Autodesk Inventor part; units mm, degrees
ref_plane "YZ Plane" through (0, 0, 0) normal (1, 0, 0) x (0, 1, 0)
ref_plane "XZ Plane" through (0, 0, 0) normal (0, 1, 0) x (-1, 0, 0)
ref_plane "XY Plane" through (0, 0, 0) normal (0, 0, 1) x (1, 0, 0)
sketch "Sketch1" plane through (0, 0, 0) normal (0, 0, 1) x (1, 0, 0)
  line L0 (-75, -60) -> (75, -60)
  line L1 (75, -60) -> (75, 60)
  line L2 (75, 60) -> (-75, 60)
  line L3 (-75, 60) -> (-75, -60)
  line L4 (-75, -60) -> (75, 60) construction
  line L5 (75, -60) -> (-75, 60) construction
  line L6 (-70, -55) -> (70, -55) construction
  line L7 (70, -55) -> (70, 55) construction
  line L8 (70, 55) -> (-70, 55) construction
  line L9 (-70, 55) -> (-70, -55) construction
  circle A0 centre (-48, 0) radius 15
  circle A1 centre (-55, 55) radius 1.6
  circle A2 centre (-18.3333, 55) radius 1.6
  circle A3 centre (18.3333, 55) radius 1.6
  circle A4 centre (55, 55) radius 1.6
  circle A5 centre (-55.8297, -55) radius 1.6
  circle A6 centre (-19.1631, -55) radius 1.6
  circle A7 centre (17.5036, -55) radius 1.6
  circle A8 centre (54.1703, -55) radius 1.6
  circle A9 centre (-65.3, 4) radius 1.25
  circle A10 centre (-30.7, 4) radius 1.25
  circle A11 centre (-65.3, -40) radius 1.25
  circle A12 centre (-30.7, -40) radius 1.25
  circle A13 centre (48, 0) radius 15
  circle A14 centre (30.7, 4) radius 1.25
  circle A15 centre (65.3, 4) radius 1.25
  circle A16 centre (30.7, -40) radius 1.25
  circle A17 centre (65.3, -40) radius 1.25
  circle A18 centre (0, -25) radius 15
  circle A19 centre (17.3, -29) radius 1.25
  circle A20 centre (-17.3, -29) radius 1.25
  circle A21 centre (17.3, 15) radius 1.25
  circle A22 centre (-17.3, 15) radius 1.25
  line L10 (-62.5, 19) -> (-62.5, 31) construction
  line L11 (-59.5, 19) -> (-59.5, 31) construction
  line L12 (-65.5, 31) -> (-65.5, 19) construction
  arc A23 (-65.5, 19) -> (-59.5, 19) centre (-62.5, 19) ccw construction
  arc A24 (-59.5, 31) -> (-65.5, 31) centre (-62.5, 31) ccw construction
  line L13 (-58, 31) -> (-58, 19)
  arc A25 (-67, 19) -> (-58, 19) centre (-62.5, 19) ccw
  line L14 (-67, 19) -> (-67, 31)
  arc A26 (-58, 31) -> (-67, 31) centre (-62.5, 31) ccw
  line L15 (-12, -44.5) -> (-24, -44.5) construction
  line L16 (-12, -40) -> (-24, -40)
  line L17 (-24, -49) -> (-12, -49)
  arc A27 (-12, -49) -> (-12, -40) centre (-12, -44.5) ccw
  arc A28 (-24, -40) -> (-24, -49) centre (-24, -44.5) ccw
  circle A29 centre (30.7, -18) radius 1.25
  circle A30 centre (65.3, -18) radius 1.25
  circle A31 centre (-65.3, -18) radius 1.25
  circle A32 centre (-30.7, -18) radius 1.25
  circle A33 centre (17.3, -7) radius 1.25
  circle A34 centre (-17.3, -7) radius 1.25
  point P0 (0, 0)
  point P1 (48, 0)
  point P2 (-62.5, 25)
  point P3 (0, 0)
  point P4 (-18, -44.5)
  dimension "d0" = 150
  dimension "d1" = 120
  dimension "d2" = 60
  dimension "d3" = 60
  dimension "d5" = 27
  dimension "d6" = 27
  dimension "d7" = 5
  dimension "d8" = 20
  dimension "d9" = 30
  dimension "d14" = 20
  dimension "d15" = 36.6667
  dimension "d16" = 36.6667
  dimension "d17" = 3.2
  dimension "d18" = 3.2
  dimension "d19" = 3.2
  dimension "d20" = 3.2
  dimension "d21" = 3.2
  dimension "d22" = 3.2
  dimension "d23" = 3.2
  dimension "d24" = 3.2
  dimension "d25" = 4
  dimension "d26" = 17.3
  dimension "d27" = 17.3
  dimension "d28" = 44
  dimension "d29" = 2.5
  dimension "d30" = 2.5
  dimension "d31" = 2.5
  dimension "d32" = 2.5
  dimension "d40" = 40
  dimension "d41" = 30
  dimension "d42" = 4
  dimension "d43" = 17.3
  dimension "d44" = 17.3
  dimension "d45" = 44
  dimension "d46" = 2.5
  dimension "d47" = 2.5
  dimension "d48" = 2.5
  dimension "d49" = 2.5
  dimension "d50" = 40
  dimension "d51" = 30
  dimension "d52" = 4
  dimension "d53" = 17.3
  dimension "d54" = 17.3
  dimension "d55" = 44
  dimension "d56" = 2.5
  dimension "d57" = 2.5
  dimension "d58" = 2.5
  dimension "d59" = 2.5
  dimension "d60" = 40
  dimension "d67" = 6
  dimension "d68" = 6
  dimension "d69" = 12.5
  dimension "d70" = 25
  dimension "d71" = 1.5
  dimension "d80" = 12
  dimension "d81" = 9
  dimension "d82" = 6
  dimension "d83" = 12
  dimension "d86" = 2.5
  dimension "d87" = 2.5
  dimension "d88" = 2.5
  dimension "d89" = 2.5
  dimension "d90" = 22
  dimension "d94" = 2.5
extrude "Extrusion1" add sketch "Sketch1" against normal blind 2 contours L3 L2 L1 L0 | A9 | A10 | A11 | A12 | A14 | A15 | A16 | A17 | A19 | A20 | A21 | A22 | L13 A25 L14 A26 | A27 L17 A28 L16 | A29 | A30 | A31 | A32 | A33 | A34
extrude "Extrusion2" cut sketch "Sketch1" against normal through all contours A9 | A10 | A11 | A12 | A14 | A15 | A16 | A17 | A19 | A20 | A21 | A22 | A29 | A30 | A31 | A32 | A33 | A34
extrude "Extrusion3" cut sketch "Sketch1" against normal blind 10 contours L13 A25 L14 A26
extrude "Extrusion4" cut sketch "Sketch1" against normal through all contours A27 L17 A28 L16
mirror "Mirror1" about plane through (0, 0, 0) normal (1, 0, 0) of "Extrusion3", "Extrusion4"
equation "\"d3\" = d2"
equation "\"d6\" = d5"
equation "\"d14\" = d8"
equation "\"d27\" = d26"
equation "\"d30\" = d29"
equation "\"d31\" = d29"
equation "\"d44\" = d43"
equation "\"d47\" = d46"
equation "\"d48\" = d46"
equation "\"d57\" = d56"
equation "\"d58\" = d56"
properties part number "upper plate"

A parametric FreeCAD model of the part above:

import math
import FreeCAD as App
import Part
import Sketcher
Q = App.Units.Quantity


def add_polygon(sketch, points):
    """Adds a closed chain of lines whose ends are joined by coincident constraints."""
    first, n = sketch.GeometryCount, len(points)
    for a, b in zip(points, points[1:] + points[:1]):
        sketch.addGeometry(Part.LineSegment(App.Vector(*a, 0), App.Vector(*b, 0)), False)
    for i in range(n):
        sketch.addConstraint(Sketcher.Constraint("Coincident", first + i, 2, first + (i + 1) % n, 1))

doc = App.newDocument("Part")
body = doc.addObject("PartDesign::Body", "Body")

# Sketch on XY plane
sketch1 = body.newObject("Sketcher::SketchObject", "Sketch")
sketch1.AttachmentSupport = (doc.getObject("XY_Plane"), [""])
sketch1.MapMode = "FlatFace"
add_polygon(sketch1, [(-75, 60), (-75, -60), (75, -60), (75, 60)])  # lines 0-3
sketch1.addGeometry(Part.Circle(App.Vector(-55.8297, -55, 0), App.Vector(0, 0, 1), 1.6), False)  # 4
sketch1.addGeometry(Part.Circle(App.Vector(-19.1631, -55, 0), App.Vector(0, 0, 1), 1.6), False)  # 5
sketch1.addGeometry(Part.Circle(App.Vector(17.5036, -55, 0), App.Vector(0, 0, 1), 1.6), False)  # 6
sketch1.addGeometry(Part.Circle(App.Vector(54.1703, -55, 0), App.Vector(0, 0, 1), 1.6), False)  # 7
sketch1.addGeometry(Part.Circle(App.Vector(0, -25, 0), App.Vector(0, 0, 1), 15), False)  # 8
sketch1.addGeometry(Part.Circle(App.Vector(-48, 0, 0), App.Vector(0, 0, 1), 15), False)  # 9
sketch1.addGeometry(Part.Circle(App.Vector(-55, 55, 0), App.Vector(0, 0, 1), 1.6), False)  # 10
sketch1.addGeometry(Part.Circle(App.Vector(-18.3333, 55, 0), App.Vector(0, 0, 1), 1.6), False)  # 11
sketch1.addGeometry(Part.Circle(App.Vector(48, 0, 0), App.Vector(0, 0, 1), 15), False)  # 12
sketch1.addGeometry(Part.Circle(App.Vector(18.3333, 55, 0), App.Vector(0, 0, 1), 1.6), False)  # 13
sketch1.addGeometry(Part.Circle(App.Vector(55, 55, 0), App.Vector(0, 0, 1), 1.6), False)  # 14
sketch1.addConstraint([
    Sketcher.Constraint("Vertical", 0),
    Sketcher.Constraint("Horizontal", 1),
    Sketcher.Constraint("Vertical", 2),
    Sketcher.Constraint("Horizontal", 3),
    Sketcher.Constraint("Equal", 4, 5),
    Sketcher.Constraint("Equal", 5, 6),
    Sketcher.Constraint("Equal", 6, 7),
    Sketcher.Constraint("Equal", 8, 9),
    Sketcher.Constraint("Equal", 7, 10),
    Sketcher.Constraint("Equal", 10, 11),
    Sketcher.Constraint("Equal", 9, 12),
    Sketcher.Constraint("Equal", 11, 13),
    Sketcher.Constraint("Equal", 13, 14),
    Sketcher.Constraint("Symmetric", 9, 3, 12, 3, -1, 1),
    Sketcher.Constraint("Symmetric", 0, 2, 2, 2, -1, 1),
    Sketcher.Constraint("Symmetric", 11, 3, 13, 3, -2),
    Sketcher.Constraint("Symmetric", 10, 3, 14, 3, -2),
    Sketcher.Constraint("PointOnObject", 8, 3, -2),
    Sketcher.Constraint("PointOnObject", 9, 3, -1),
    Sketcher.Constraint("Horizontal", 4, 3, 5, 3),
    Sketcher.Constraint("Horizontal", 5, 3, 6, 3),
    Sketcher.Constraint("Horizontal", 6, 3, 7, 3),
    Sketcher.Constraint("Horizontal", 10, 3, 11, 3),
    Sketcher.Constraint("Diameter", 8, Q("30 mm")),
    Sketcher.Constraint("Diameter", 4, Q("3.2 mm")),
    Sketcher.Constraint("DistanceX", 1, 1, 1, 2, Q("150 mm")),
    Sketcher.Constraint("DistanceY", 0, 2, 0, 1, Q("120 mm")),
    Sketcher.Constraint("DistanceY", 8, 3, -1, 1, Q("25 mm")),
    Sketcher.Constraint("DistanceY", 6, 3, 8, 3, Q("30 mm")),
    Sketcher.Constraint("DistanceX", 0, 2, 9, 3, Q("27 mm")),
    Sketcher.Constraint("DistanceX", 14, 3, 2, 2, Q("20 mm")),
    Sketcher.Constraint("DistanceY", 14, 3, 2, 2, Q("5 mm")),
    Sketcher.Constraint("DistanceX", 4, 3, 7, 3, Q("110 mm")),
    Sketcher.Constraint("DistanceX", 4, 3, 5, 3, Q("36.6666 mm")),
    Sketcher.Constraint("DistanceX", 5, 3, 6, 3, Q("36.6667 mm")),
    Sketcher.Constraint("DistanceX", 10, 3, 11, 3, Q("36.6667 mm")),
    Sketcher.Constraint("DistanceX", 5, 3, -1, 1, Q("19.163 mm")),
])
pad1 = body.newObject("PartDesign::Pad", "Pad")
pad1.Profile = sketch1
pad1.Length = 2
pad1.Reversed = True

# Sketch on XY plane
sketch2 = body.newObject("Sketcher::SketchObject", "Sketch001")
sketch2.AttachmentSupport = (doc.getObject("XY_Plane"), [""])
sketch2.MapMode = "FlatFace"
sketch2.addGeometry([
    Part.Circle(App.Vector(-65.3, 4, 0), App.Vector(0, 0, 1), 1.25),  # 0
    Part.Circle(App.Vector(-30.7, 4, 0), App.Vector(0, 0, 1), 1.25),  # 1
    Part.Circle(App.Vector(-65.3, -40, 0), App.Vector(0, 0, 1), 1.25),  # 2
    Part.Circle(App.Vector(-30.7, -40, 0), App.Vector(0, 0, 1), 1.25),  # 3
    Part.Circle(App.Vector(30.7, 4, 0), App.Vector(0, 0, 1), 1.25),  # 4
    Part.Circle(App.Vector(65.3, 4, 0), App.Vector(0, 0, 1), 1.25),  # 5
    Part.Circle(App.Vector(30.7, -40, 0), App.Vector(0, 0, 1), 1.25),  # 6
    Part.Circle(App.Vector(65.3, -40, 0), App.Vector(0, 0, 1), 1.25),  # 7
    Part.Circle(App.Vector(17.3, -29, 0), App.Vector(0, 0, 1), 1.25),  # 8
    Part.Circle(App.Vector(-17.3, -29, 0), App.Vector(0, 0, 1), 1.25),  # 9
    Part.Circle(App.Vector(17.3, 15, 0), App.Vector(0, 0, 1), 1.25),  # 10
    Part.Circle(App.Vector(-17.3, 15, 0), App.Vector(0, 0, 1), 1.25),  # 11
    Part.Circle(App.Vector(30.7, -18, 0), App.Vector(0, 0, 1), 1.25),  # 12
    Part.Circle(App.Vector(65.3, -18, 0), App.Vector(0, 0, 1), 1.25),  # 13
    Part.Circle(App.Vector(-65.3, -18, 0), App.Vector(0, 0, 1), 1.25),  # 14
    Part.Circle(App.Vector(-30.7, -18, 0), App.Vector(0, 0, 1), 1.25),  # 15
    Part.Circle(App.Vector(17.3, -7, 0), App.Vector(0, 0, 1), 1.25),  # 16
    Part.Circle(App.Vector(-17.3, -7, 0), App.Vector(0, 0, 1), 1.25),  # 17
], False)
sketch2.addConstraint([
    Sketcher.Constraint("Equal", 0, 1),
    Sketcher.Constraint("Equal", 1, 2),
    Sketcher.Constraint("Equal", 2, 3),
    Sketcher.Constraint("Equal", 3, 4),
    Sketcher.Constraint("Equal", 4, 5),
    Sketcher.Constraint("Equal", 5, 6),
    Sketcher.Constraint("Equal", 6, 7),
    Sketcher.Constraint("Equal", 7, 8),
    Sketcher.Constraint("Equal", 8, 9),
    Sketcher.Constraint("Equal", 9, 10),
    Sketcher.Constraint("Equal", 10, 11),
    Sketcher.Constraint("Equal", 11, 12),
    Sketcher.Constraint("Equal", 12, 13),
    Sketcher.Constraint("Equal", 13, 14),
    Sketcher.Constraint("Equal", 14, 15),
    Sketcher.Constraint("Equal", 15, 16),
    Sketcher.Constraint("Equal", 16, 17),
    Sketcher.Constraint("Symmetric", 1, 3, 4, 3, -2),
    Sketcher.Constraint("Symmetric", 0, 3, 5, 3, -2),
    Sketcher.Constraint("Symmetric", 3, 3, 6, 3, -2),
    Sketcher.Constraint("Symmetric", 2, 3, 7, 3, -2),
    Sketcher.Constraint("Symmetric", 8, 3, 9, 3, -2),
    Sketcher.Constraint("Symmetric", 10, 3, 11, 3, -2),
    Sketcher.Constraint("Symmetric", 13, 3, 14, 3, -2),
    Sketcher.Constraint("Symmetric", 12, 3, 15, 3, -2),
    Sketcher.Constraint("Symmetric", 16, 3, 17, 3, -2),
    Sketcher.Constraint("Horizontal", 0, 3, 1, 3),
    Sketcher.Constraint("Horizontal", 2, 3, 3, 3),
    Sketcher.Constraint("Horizontal", 12, 3, 13, 3),
    Sketcher.Constraint("Vertical", 0, 3, 2, 3),
    Sketcher.Constraint("Vertical", 1, 3, 3, 3),
    Sketcher.Constraint("Vertical", 8, 3, 10, 3),
    Sketcher.Constraint("Vertical", 6, 3, 12, 3),
    Sketcher.Constraint("Vertical", 7, 3, 13, 3),
    Sketcher.Constraint("Vertical", 10, 3, 16, 3),
    Sketcher.Constraint("Diameter", 0, Q("2.5 mm")),
    Sketcher.Constraint("DistanceY", -1, 1, 0, 3, Q("4 mm")),
    Sketcher.Constraint("DistanceY", 2, 3, -1, 1, Q("40 mm")),
    Sketcher.Constraint("DistanceY", 8, 3, 10, 3, Q("44 mm")),
    Sketcher.Constraint("DistanceY", 12, 3, 4, 3, Q("22 mm")),
    Sketcher.Constraint("DistanceY", 8, 3, 16, 3, Q("22 mm")),
    Sketcher.Constraint("DistanceX", -1, 1, 8, 3, Q("17.3 mm")),
    Sketcher.Constraint("DistanceY", 8, 3, -1, 1, Q("29 mm")),
    Sketcher.Constraint("DistanceX", 0, 3, 4, 3, Q("96 mm")),
    Sketcher.Constraint("DistanceX", 3, 3, 8, 3, Q("48 mm")),
])
pocket1 = body.newObject("PartDesign::Pocket", "Pocket")
pocket1.Profile = sketch2
pocket1.Type = "ThroughAll"

# Sketch on XY plane
sketch3 = body.newObject("Sketcher::SketchObject", "Sketch002")
sketch3.AttachmentSupport = (doc.getObject("XY_Plane"), [""])
sketch3.MapMode = "FlatFace"
sketch3.addGeometry([
    Part.LineSegment(App.Vector(-58, 19, 0), App.Vector(-58, 31, 0)),
    Part.ArcOfCircle(Part.Circle(App.Vector(-62.5, 31, 0), App.Vector(0, 0, 1), 4.5), math.radians(0), math.radians(180)),
    Part.LineSegment(App.Vector(-67, 31, 0), App.Vector(-67, 19, 0)),
    Part.ArcOfCircle(Part.Circle(App.Vector(-62.5, 19, 0), App.Vector(0, 0, 1), 4.5), math.radians(180), math.radians(360)),
], False)
sketch3.addConstraint([
    Sketcher.Constraint("Tangent", 0, 2, 1, 1),
    Sketcher.Constraint("Tangent", 1, 2, 2, 1),
    Sketcher.Constraint("Tangent", 2, 2, 3, 1),
    Sketcher.Constraint("Tangent", 3, 2, 0, 1),
    Sketcher.Constraint("Vertical", 0),
    Sketcher.Constraint("Vertical", 2),
    Sketcher.Constraint("Radius", 1, Q("4.5 mm")),
    Sketcher.Constraint("DistanceY", 0, 1, 0, 2, Q("12 mm")),
    Sketcher.Constraint("DistanceY", -1, 1, 1, 3, Q("31 mm")),
    Sketcher.Constraint("DistanceX", 0, 2, -1, 1, Q("58 mm")),
])
pocket2 = body.newObject("PartDesign::Pocket", "Pocket001")
pocket2.Profile = sketch3
pocket2.Length = 10

# Sketch on XY plane
sketch4 = body.newObject("Sketcher::SketchObject", "Sketch003")
sketch4.AttachmentSupport = (doc.getObject("XY_Plane"), [""])
sketch4.MapMode = "FlatFace"
sketch4.addGeometry([
    Part.ArcOfCircle(Part.Circle(App.Vector(-12, -44.5, 0), App.Vector(0, 0, 1), 4.5), math.radians(-90), math.radians(90)),
    Part.LineSegment(App.Vector(-12, -40, 0), App.Vector(-24, -40, 0)),
    Part.ArcOfCircle(Part.Circle(App.Vector(-24, -44.5, 0), App.Vector(0, 0, 1), 4.5), math.radians(90), math.radians(270)),
    Part.LineSegment(App.Vector(-24, -49, 0), App.Vector(-12, -49, 0)),
], False)
sketch4.addConstraint([
    Sketcher.Constraint("Tangent", 0, 2, 1, 1),
    Sketcher.Constraint("Tangent", 1, 2, 2, 1),
    Sketcher.Constraint("Tangent", 2, 2, 3, 1),
    Sketcher.Constraint("Tangent", 3, 2, 0, 1),
    Sketcher.Constraint("Horizontal", 1),
    Sketcher.Constraint("Horizontal", 3),
    Sketcher.Constraint("Radius", 0, Q("4.5 mm")),
    Sketcher.Constraint("DistanceX", 1, 2, 1, 1, Q("12 mm")),
    Sketcher.Constraint("DistanceX", 0, 3, -1, 1, Q("12 mm")),
    Sketcher.Constraint("DistanceY", 0, 2, -1, 1, Q("40 mm")),
])
pocket3 = body.newObject("PartDesign::Pocket", "Pocket002")
pocket3.Profile = sketch4
pocket3.Type = "ThroughAll"
doc.recompute()

mirrored = body.newObject("PartDesign::Mirrored", "Mirrored")
mirrored.Originals = [pocket2, pocket3]
mirrored.MirrorPlane = (doc.getObject("YZ_Plane"), [""])
body.Tip = mirrored

doc.recompute()
